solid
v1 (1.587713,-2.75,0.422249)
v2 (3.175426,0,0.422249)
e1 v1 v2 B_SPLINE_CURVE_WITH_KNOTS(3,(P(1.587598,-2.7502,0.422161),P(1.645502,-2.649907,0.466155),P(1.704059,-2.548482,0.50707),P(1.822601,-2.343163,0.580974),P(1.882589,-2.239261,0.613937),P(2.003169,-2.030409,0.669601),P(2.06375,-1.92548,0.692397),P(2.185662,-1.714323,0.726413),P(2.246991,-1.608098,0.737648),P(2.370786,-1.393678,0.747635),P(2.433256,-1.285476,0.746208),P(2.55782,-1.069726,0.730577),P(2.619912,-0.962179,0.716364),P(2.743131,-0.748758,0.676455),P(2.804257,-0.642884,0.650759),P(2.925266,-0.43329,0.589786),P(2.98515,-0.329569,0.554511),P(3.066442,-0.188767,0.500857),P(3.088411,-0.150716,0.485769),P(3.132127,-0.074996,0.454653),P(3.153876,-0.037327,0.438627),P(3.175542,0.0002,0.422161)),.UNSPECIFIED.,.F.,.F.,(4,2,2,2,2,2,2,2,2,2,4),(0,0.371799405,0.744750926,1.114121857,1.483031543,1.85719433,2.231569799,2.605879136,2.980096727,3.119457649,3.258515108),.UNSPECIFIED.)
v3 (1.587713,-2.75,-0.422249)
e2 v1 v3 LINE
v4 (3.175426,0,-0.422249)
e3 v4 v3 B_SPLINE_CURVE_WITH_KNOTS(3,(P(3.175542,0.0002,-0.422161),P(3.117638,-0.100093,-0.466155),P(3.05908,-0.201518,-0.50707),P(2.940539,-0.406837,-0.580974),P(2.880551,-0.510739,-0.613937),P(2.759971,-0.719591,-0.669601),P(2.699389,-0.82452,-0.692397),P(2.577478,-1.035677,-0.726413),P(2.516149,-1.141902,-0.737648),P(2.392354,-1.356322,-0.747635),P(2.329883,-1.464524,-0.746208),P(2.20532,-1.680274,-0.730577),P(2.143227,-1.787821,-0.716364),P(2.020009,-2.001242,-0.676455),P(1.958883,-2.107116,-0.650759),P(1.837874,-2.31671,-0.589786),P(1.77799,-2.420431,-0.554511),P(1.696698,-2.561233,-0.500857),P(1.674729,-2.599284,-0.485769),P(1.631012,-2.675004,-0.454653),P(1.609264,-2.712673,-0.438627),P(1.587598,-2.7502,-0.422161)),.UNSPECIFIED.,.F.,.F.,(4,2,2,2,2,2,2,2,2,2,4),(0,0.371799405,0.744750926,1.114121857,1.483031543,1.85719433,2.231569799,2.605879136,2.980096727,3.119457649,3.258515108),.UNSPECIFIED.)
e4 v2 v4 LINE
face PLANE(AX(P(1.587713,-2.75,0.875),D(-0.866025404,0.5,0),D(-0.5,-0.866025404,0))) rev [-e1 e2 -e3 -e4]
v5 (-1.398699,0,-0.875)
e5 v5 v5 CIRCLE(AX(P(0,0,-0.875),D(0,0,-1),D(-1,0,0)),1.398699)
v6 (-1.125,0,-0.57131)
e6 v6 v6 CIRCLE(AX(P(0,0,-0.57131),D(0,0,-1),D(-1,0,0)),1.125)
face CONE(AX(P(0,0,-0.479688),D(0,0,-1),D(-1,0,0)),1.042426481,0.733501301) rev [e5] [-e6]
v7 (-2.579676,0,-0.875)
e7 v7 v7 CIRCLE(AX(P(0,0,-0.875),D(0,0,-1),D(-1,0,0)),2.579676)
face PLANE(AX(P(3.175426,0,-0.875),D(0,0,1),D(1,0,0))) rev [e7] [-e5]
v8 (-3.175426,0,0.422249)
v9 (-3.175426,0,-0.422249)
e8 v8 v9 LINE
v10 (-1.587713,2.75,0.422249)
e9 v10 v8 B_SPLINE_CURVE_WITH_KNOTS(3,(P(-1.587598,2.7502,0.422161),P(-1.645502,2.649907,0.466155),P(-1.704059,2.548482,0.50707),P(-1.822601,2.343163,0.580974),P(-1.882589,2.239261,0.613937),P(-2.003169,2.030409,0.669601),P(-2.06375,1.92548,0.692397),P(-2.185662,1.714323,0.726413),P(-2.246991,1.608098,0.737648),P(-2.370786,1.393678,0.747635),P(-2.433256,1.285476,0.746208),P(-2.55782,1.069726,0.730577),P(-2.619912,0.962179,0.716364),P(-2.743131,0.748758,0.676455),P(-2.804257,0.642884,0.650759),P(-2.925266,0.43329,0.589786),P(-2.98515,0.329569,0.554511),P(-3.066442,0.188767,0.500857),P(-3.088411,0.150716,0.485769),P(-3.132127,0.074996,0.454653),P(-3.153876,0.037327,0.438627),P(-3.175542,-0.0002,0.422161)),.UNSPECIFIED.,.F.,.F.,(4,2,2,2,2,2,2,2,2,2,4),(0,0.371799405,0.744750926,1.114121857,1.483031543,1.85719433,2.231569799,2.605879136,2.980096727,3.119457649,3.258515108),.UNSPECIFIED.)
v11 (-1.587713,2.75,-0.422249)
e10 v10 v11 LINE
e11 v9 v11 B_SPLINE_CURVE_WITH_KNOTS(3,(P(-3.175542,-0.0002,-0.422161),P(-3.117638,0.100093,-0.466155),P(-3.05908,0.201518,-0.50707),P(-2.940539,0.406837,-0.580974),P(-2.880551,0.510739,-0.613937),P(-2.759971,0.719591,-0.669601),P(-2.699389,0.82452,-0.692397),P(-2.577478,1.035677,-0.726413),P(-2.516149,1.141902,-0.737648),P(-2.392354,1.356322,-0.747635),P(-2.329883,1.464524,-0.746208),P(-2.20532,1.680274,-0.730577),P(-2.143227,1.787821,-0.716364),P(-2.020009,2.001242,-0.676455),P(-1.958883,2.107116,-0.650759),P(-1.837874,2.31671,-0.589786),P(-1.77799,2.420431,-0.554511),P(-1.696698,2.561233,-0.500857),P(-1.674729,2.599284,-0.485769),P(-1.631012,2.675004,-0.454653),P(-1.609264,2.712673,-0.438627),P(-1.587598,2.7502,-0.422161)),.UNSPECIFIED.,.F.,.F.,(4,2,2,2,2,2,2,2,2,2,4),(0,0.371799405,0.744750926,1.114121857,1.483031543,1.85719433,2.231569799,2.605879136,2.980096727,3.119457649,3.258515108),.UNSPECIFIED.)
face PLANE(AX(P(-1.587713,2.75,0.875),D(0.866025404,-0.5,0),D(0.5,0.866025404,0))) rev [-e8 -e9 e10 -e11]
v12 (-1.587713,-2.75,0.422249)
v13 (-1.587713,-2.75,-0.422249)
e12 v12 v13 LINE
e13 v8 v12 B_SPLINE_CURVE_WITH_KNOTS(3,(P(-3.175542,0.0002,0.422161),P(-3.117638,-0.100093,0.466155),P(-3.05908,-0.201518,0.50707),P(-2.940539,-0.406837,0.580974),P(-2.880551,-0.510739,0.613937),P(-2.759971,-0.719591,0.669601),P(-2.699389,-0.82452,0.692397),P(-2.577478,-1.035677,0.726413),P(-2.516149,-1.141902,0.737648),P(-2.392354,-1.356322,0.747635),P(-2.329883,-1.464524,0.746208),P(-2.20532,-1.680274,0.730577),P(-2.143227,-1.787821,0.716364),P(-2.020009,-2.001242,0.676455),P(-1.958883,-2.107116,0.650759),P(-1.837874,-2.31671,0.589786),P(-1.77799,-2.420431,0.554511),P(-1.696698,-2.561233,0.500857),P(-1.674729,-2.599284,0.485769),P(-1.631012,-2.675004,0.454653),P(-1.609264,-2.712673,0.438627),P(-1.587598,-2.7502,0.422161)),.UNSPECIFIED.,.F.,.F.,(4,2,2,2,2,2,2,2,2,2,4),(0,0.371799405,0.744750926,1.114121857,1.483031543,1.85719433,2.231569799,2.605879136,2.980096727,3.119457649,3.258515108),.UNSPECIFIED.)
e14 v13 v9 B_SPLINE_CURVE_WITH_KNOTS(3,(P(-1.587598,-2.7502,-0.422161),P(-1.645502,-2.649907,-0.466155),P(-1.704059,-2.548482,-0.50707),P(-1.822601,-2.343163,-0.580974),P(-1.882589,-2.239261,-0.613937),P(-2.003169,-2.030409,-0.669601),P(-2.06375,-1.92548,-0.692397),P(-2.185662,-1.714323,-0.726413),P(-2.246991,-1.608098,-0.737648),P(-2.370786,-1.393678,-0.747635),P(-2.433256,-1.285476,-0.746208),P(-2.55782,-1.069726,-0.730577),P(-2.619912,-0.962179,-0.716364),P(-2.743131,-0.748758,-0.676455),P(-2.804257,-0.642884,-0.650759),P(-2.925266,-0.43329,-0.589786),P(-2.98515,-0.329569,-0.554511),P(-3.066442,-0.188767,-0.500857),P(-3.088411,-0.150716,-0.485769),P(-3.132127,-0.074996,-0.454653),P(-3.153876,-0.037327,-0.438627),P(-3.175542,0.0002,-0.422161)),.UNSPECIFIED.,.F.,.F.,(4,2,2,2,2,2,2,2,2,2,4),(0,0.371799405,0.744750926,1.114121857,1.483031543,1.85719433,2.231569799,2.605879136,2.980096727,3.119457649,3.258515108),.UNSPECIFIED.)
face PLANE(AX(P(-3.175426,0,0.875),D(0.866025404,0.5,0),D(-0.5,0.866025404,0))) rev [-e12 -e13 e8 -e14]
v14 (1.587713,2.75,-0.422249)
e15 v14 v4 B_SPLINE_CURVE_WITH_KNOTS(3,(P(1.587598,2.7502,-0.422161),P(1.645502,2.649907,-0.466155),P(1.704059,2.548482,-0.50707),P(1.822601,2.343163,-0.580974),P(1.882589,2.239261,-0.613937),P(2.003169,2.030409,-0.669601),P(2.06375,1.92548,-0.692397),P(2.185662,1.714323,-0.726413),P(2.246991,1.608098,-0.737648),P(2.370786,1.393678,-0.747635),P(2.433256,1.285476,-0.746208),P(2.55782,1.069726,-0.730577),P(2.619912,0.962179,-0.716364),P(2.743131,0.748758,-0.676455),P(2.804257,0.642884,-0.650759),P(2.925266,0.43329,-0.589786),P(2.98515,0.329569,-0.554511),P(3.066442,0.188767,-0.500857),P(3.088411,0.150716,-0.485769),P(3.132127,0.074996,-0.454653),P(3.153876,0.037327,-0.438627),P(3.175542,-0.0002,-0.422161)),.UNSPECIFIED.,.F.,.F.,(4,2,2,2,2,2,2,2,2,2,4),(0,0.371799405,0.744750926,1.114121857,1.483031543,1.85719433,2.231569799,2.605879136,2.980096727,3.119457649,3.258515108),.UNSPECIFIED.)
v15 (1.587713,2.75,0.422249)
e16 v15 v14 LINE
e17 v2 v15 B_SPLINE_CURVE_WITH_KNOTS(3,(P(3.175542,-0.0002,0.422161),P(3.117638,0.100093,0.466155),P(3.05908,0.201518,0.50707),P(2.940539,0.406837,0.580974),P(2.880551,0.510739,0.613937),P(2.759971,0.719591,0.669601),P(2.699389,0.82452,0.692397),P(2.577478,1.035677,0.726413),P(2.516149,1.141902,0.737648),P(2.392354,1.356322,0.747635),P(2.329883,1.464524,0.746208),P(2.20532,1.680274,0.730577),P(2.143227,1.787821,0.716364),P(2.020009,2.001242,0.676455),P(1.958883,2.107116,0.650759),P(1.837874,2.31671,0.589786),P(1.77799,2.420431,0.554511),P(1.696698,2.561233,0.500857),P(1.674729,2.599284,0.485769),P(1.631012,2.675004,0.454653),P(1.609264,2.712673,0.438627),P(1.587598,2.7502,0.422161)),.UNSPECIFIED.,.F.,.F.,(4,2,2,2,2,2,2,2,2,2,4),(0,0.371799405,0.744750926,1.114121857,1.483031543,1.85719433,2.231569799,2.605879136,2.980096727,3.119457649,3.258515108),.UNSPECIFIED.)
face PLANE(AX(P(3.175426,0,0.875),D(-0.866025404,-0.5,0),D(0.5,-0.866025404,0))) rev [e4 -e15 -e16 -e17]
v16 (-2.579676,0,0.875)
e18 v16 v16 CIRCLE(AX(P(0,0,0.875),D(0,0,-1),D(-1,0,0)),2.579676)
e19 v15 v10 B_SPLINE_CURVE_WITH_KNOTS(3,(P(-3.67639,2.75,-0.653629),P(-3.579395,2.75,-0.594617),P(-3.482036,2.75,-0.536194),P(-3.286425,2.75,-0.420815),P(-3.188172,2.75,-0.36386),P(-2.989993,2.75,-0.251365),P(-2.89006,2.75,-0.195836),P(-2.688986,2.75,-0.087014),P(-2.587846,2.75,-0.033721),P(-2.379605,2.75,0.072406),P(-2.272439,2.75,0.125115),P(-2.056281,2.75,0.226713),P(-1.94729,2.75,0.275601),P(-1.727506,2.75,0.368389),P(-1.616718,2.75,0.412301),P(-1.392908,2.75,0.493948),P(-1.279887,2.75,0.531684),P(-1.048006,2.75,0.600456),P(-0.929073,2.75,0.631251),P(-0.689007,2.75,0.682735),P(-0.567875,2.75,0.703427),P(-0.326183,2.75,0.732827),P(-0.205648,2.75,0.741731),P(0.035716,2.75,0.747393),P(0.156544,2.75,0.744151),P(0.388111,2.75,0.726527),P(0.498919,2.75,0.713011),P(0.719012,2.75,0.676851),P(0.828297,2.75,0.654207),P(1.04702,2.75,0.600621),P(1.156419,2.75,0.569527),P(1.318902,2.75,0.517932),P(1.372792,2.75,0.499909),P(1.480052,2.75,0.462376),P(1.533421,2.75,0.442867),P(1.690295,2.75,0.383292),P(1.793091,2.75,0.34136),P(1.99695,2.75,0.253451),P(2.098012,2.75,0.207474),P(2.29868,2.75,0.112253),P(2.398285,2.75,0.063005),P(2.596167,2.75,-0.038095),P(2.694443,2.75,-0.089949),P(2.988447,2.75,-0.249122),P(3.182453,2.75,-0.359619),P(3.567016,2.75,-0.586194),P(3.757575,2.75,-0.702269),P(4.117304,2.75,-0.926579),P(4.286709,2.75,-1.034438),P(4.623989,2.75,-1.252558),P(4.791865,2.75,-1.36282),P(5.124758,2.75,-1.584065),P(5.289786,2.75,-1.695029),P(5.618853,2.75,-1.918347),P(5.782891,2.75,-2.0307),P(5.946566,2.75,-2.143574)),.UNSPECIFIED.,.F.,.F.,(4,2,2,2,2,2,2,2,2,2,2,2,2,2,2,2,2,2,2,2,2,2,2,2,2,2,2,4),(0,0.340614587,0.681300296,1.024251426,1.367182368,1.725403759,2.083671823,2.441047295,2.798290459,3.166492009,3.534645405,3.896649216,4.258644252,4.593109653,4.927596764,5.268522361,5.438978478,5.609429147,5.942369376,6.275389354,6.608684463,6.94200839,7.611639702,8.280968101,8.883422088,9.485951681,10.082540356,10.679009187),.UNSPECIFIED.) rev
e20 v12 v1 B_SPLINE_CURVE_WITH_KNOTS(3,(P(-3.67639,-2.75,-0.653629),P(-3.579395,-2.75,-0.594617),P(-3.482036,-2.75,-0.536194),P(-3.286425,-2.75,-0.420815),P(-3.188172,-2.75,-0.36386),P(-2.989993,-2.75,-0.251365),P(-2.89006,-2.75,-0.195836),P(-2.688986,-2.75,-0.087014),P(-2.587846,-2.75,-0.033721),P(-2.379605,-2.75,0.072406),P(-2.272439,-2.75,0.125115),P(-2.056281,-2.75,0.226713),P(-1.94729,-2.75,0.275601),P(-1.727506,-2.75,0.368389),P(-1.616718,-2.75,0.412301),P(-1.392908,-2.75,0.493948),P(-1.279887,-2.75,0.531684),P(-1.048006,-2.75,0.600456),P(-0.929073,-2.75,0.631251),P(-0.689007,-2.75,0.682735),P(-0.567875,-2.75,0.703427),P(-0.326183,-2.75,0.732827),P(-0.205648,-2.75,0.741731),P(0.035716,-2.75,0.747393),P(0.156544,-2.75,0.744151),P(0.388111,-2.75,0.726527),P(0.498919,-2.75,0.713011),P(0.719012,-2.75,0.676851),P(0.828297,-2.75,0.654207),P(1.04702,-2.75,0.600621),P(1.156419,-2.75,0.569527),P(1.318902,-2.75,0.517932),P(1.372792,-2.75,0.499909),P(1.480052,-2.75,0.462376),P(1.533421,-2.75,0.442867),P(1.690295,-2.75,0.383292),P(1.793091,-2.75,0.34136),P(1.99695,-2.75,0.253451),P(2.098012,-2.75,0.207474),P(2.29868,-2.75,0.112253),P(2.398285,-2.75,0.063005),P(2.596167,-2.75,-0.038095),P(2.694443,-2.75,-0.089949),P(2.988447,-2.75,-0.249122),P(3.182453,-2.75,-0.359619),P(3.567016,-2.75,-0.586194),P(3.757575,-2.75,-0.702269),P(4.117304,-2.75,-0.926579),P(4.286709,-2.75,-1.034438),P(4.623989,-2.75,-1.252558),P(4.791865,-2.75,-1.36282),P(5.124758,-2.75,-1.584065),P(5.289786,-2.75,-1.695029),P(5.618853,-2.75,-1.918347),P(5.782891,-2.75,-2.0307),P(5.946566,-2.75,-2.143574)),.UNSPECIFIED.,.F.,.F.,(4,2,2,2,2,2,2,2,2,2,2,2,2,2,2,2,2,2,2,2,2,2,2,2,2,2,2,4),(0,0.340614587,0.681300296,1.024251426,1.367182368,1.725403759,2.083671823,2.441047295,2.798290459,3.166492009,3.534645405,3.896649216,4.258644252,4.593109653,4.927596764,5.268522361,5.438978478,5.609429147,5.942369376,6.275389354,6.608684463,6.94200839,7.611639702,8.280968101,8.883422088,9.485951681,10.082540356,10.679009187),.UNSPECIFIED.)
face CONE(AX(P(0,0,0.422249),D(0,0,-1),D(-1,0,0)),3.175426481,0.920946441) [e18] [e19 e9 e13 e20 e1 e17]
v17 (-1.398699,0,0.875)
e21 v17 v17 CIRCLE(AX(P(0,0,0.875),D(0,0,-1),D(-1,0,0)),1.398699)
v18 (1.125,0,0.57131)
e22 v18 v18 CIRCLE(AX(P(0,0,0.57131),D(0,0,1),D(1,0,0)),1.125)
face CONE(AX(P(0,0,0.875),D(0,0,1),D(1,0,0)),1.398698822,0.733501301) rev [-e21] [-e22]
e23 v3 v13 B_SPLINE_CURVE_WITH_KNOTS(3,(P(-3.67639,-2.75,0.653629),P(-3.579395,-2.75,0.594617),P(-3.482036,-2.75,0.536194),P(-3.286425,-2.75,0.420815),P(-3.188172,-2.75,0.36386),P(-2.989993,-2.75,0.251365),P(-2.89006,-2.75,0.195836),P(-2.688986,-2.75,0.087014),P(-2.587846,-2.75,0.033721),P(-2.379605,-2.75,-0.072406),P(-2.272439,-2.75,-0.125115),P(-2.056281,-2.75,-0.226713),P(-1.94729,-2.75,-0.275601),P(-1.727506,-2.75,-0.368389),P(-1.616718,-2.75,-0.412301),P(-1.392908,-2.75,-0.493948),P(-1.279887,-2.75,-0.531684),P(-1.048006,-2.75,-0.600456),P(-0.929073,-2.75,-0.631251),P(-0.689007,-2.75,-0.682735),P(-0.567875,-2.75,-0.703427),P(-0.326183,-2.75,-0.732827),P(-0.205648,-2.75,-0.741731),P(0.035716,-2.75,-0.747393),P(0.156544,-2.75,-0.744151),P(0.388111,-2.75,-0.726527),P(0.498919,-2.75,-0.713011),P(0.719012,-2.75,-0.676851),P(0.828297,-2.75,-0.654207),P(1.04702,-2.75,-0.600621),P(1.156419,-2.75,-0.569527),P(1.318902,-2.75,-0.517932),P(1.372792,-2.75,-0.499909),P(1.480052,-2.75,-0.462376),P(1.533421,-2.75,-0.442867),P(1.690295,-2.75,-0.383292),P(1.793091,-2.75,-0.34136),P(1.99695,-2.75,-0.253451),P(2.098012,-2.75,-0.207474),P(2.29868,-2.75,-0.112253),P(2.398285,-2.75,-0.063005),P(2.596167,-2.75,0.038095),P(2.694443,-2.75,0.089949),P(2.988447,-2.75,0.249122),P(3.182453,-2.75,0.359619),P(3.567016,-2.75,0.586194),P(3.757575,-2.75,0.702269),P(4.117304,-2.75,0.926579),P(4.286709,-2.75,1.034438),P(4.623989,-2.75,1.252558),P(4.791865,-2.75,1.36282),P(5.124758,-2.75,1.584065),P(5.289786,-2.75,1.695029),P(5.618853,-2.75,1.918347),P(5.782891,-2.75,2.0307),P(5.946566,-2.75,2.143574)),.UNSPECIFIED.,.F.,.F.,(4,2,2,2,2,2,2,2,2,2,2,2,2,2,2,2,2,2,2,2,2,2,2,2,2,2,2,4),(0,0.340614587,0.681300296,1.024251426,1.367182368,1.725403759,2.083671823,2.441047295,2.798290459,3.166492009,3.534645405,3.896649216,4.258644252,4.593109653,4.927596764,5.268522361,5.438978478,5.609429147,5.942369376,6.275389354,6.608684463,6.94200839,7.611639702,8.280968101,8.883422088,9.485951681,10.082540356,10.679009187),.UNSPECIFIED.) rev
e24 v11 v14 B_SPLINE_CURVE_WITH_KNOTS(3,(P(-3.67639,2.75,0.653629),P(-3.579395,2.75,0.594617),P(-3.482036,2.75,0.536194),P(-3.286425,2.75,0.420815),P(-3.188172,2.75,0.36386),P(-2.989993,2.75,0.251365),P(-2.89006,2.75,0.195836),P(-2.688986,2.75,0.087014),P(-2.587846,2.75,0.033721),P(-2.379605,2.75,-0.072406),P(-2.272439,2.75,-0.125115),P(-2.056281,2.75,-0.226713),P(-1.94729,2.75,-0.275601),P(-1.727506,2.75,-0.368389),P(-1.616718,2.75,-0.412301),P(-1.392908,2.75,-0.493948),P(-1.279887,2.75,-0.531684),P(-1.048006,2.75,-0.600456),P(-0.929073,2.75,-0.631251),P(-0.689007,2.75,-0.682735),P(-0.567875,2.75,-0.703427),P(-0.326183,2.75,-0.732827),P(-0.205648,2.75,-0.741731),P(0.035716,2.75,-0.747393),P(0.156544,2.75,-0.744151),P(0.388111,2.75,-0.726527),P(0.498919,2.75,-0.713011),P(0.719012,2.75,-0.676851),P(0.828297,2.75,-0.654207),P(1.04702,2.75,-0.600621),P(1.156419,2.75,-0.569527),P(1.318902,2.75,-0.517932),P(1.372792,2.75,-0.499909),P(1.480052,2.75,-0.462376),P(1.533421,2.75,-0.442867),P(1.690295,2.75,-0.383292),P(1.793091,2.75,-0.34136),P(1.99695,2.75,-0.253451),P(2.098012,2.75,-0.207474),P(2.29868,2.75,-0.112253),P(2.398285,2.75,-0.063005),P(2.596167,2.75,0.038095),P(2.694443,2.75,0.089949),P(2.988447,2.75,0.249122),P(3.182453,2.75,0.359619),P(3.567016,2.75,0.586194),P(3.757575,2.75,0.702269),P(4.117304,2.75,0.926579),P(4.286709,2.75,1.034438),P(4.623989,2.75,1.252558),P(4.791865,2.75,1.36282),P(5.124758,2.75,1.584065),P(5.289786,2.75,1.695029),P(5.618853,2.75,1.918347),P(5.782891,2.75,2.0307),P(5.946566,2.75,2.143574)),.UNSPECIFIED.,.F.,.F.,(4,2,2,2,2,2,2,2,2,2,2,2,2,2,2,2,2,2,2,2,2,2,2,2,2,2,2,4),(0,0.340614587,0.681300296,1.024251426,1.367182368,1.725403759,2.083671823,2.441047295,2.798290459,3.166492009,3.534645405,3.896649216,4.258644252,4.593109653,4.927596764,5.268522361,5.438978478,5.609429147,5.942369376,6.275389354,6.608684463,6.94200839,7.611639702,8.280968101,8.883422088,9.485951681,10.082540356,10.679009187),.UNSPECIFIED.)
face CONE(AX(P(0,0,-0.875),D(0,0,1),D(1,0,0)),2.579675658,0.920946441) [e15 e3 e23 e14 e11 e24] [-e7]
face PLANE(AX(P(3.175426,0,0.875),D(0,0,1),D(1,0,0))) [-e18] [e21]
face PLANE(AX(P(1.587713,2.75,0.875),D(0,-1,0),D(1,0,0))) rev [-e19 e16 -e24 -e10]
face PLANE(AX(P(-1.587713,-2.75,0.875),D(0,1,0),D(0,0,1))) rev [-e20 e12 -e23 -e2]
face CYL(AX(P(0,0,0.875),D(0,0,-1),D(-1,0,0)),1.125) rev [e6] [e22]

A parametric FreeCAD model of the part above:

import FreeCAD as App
import Part
import Sketcher
Q = App.Units.Quantity

doc = App.newDocument("Part")
params = doc.addObject("Spreadsheet::Sheet", "Params")
for row, (alias, value) in enumerate([
    ("sketch1_diameter", "2.25 mm"),
    ("pad1_length", "1.75 mm"),
    ("groove_angle", "360 deg"),
], start=1):
    params.set(f"A{row}", alias)
    params.set(f"B{row}", "=" + value)
    params.setAlias(f"B{row}", alias)

body = doc.addObject("PartDesign::Body", "Body")

sketch1 = body.newObject("Sketcher::SketchObject", "Sketch")
sketch1.AttachmentSupport = (doc.getObject("XY_Plane"), [""])
sketch1.MapMode = "FlatFace"
sketch1.addGeometry([
    Part.LineSegment(App.Vector(3.175426, 0, 0), App.Vector(1.587713, 2.75, 0)),
    Part.LineSegment(App.Vector(1.587713, 2.75, 0), App.Vector(-1.587713, 2.75, 0)),
    Part.LineSegment(App.Vector(-1.587713, 2.75, 0), App.Vector(-3.175426, 0, 0)),
    Part.LineSegment(App.Vector(-3.175426, 0, 0), App.Vector(-1.587713, -2.75, 0)),
    Part.LineSegment(App.Vector(-1.587713, -2.75, 0), App.Vector(1.587713, -2.75, 0)),
    Part.LineSegment(App.Vector(1.587713, -2.75, 0), App.Vector(3.175426, 0, 0)),
    Part.Circle(App.Vector(0, 0, 0), App.Vector(0, 0, 1), 1.125),
], False)
sketch1.addConstraint([
    Sketcher.Constraint("Coincident", 0, 2, 1, 1),
    Sketcher.Constraint("Coincident", 1, 2, 2, 1),
    Sketcher.Constraint("Coincident", 2, 2, 3, 1),
    Sketcher.Constraint("Coincident", 3, 2, 4, 1),
    Sketcher.Constraint("Coincident", 4, 2, 5, 1),
    Sketcher.Constraint("Coincident", 5, 2, 0, 1),
    Sketcher.Constraint("Horizontal", 1),
    Sketcher.Constraint("Horizontal", 4),
    Sketcher.Constraint("Coincident", 6, 3, -1, 1),
    Sketcher.Constraint("Symmetric", 0, 2, 3, 2, -1, 1),
    Sketcher.Constraint("Symmetric", 2, 2, 5, 2, -1, 1),
    Sketcher.Constraint("PointOnObject", 2, 2, -1),
    Sketcher.Constraint("Parallel", 2, 5),
    Sketcher.Constraint("Vertical", 1, 2, 3, 2),
    Sketcher.Constraint("Diameter", 6, 2.25),
    Sketcher.Constraint("Angle", 0, Q("120 deg")),
    Sketcher.Constraint("DistanceY", 3, 2, 1, 2, 5.5),
    Sketcher.Constraint("DistanceX", 1, 2, 1, 1, 3.175426),
])
sketch1.setExpression("Constraints[14]", "Params.sketch1_diameter")
pad1 = body.newObject("PartDesign::Pad", "Pad")
pad1.Profile = sketch1
pad1.setExpression("Length", "Params.pad1_length")
pad1.Midplane = True

sketch2 = body.newObject("Sketcher::SketchObject", "Sketch001")
sketch2.AttachmentSupport = (doc.getObject("XZ_Plane"), [""])
sketch2.MapMode = "FlatFace"
sketch2.addGeometry([
    Part.LineSegment(App.Vector(3.175426, -0.422249, 0), App.Vector(3.175426, -0.875, 0)),
    Part.LineSegment(App.Vector(3.175426, -0.875, 0), App.Vector(2.579676, -0.875, 0)),
    Part.LineSegment(App.Vector(2.579676, -0.875, 0), App.Vector(3.175426, -0.422249, 0)),
    Part.LineSegment(App.Vector(3.175426, 0.875, 0), App.Vector(3.175426, 0.422249, 0)),
    Part.LineSegment(App.Vector(3.175426, 0.422249, 0), App.Vector(2.579676, 0.875, 0)),
    Part.LineSegment(App.Vector(2.579676, 0.875, 0), App.Vector(3.175426, 0.875, 0)),
    Part.LineSegment(App.Vector(1.398699, -0.875, 0), App.Vector(1.042426, -0.875, 0)),
    Part.LineSegment(App.Vector(1.042426, -0.875, 0), App.Vector(1.042426, -0.479688, 0)),
    Part.LineSegment(App.Vector(1.042426, -0.479688, 0), App.Vector(1.398699, -0.875, 0)),
    Part.LineSegment(App.Vector(1.042426, 0.875, 0), App.Vector(1.398699, 0.875, 0)),
    Part.LineSegment(App.Vector(1.398699, 0.875, 0), App.Vector(1.042426, 0.479688, 0)),
    Part.LineSegment(App.Vector(1.042426, 0.479688, 0), App.Vector(1.042426, 0.875, 0)),
], False)
sketch2.addConstraint([
    Sketcher.Constraint("Coincident", 0, 2, 1, 1),
    Sketcher.Constraint("Coincident", 1, 2, 2, 1),
    Sketcher.Constraint("Coincident", 2, 2, 0, 1),
    Sketcher.Constraint("Coincident", 3, 2, 4, 1),
    Sketcher.Constraint("Coincident", 4, 2, 5, 1),
    Sketcher.Constraint("Coincident", 5, 2, 3, 1),
    Sketcher.Constraint("Coincident", 6, 2, 7, 1),
    Sketcher.Constraint("Coincident", 7, 2, 8, 1),
    Sketcher.Constraint("Coincident", 8, 2, 6, 1),
    Sketcher.Constraint("Coincident", 9, 2, 10, 1),
    Sketcher.Constraint("Coincident", 10, 2, 11, 1),
    Sketcher.Constraint("Coincident", 11, 2, 9, 1),
    Sketcher.Constraint("Vertical", 0),
    Sketcher.Constraint("Horizontal", 1),
    Sketcher.Constraint("Vertical", 3),
    Sketcher.Constraint("Horizontal", 5),
    Sketcher.Constraint("Horizontal", 6),
    Sketcher.Constraint("Vertical", 7),
    Sketcher.Constraint("Horizontal", 9),
    Sketcher.Constraint("Vertical", 11),
    Sketcher.Constraint("Symmetric", 2, 2, 3, 2, -1),
    Sketcher.Constraint("Symmetric", 1, 2, 4, 2, -1),
    Sketcher.Constraint("Symmetric", 8, 2, 9, 2, -1),
    Sketcher.Constraint("Symmetric", 7, 2, 10, 2, -1),
    Sketcher.Constraint("Horizontal", 1, 2, 6, 2),
    Sketcher.Constraint("DistanceY", 1, 2, 4, 2, 1.75),
    Sketcher.Constraint("DistanceX", 6, 2, 0, 2, 2.133),
    Sketcher.Constraint("DistanceX", 1, 2, 1, 1, 0.595751),
    Sketcher.Constraint("DistanceY", 0, 2, 0, 1, 0.452751),
    Sketcher.Constraint("DistanceX", -1, 1, 8, 2, 1.398699),
    Sketcher.Constraint("DistanceX", 6, 2, 6, 1, 0.356272),
    Sketcher.Constraint("DistanceY", 7, 1, 7, 2, 0.395312),
])
groove = body.newObject("PartDesign::Groove", "Groove")
groove.Profile = sketch2
groove.ReferenceAxis = (sketch2, ["V_Axis"])
groove.setExpression("Angle", "Params.groove_angle")

doc.recompute()
